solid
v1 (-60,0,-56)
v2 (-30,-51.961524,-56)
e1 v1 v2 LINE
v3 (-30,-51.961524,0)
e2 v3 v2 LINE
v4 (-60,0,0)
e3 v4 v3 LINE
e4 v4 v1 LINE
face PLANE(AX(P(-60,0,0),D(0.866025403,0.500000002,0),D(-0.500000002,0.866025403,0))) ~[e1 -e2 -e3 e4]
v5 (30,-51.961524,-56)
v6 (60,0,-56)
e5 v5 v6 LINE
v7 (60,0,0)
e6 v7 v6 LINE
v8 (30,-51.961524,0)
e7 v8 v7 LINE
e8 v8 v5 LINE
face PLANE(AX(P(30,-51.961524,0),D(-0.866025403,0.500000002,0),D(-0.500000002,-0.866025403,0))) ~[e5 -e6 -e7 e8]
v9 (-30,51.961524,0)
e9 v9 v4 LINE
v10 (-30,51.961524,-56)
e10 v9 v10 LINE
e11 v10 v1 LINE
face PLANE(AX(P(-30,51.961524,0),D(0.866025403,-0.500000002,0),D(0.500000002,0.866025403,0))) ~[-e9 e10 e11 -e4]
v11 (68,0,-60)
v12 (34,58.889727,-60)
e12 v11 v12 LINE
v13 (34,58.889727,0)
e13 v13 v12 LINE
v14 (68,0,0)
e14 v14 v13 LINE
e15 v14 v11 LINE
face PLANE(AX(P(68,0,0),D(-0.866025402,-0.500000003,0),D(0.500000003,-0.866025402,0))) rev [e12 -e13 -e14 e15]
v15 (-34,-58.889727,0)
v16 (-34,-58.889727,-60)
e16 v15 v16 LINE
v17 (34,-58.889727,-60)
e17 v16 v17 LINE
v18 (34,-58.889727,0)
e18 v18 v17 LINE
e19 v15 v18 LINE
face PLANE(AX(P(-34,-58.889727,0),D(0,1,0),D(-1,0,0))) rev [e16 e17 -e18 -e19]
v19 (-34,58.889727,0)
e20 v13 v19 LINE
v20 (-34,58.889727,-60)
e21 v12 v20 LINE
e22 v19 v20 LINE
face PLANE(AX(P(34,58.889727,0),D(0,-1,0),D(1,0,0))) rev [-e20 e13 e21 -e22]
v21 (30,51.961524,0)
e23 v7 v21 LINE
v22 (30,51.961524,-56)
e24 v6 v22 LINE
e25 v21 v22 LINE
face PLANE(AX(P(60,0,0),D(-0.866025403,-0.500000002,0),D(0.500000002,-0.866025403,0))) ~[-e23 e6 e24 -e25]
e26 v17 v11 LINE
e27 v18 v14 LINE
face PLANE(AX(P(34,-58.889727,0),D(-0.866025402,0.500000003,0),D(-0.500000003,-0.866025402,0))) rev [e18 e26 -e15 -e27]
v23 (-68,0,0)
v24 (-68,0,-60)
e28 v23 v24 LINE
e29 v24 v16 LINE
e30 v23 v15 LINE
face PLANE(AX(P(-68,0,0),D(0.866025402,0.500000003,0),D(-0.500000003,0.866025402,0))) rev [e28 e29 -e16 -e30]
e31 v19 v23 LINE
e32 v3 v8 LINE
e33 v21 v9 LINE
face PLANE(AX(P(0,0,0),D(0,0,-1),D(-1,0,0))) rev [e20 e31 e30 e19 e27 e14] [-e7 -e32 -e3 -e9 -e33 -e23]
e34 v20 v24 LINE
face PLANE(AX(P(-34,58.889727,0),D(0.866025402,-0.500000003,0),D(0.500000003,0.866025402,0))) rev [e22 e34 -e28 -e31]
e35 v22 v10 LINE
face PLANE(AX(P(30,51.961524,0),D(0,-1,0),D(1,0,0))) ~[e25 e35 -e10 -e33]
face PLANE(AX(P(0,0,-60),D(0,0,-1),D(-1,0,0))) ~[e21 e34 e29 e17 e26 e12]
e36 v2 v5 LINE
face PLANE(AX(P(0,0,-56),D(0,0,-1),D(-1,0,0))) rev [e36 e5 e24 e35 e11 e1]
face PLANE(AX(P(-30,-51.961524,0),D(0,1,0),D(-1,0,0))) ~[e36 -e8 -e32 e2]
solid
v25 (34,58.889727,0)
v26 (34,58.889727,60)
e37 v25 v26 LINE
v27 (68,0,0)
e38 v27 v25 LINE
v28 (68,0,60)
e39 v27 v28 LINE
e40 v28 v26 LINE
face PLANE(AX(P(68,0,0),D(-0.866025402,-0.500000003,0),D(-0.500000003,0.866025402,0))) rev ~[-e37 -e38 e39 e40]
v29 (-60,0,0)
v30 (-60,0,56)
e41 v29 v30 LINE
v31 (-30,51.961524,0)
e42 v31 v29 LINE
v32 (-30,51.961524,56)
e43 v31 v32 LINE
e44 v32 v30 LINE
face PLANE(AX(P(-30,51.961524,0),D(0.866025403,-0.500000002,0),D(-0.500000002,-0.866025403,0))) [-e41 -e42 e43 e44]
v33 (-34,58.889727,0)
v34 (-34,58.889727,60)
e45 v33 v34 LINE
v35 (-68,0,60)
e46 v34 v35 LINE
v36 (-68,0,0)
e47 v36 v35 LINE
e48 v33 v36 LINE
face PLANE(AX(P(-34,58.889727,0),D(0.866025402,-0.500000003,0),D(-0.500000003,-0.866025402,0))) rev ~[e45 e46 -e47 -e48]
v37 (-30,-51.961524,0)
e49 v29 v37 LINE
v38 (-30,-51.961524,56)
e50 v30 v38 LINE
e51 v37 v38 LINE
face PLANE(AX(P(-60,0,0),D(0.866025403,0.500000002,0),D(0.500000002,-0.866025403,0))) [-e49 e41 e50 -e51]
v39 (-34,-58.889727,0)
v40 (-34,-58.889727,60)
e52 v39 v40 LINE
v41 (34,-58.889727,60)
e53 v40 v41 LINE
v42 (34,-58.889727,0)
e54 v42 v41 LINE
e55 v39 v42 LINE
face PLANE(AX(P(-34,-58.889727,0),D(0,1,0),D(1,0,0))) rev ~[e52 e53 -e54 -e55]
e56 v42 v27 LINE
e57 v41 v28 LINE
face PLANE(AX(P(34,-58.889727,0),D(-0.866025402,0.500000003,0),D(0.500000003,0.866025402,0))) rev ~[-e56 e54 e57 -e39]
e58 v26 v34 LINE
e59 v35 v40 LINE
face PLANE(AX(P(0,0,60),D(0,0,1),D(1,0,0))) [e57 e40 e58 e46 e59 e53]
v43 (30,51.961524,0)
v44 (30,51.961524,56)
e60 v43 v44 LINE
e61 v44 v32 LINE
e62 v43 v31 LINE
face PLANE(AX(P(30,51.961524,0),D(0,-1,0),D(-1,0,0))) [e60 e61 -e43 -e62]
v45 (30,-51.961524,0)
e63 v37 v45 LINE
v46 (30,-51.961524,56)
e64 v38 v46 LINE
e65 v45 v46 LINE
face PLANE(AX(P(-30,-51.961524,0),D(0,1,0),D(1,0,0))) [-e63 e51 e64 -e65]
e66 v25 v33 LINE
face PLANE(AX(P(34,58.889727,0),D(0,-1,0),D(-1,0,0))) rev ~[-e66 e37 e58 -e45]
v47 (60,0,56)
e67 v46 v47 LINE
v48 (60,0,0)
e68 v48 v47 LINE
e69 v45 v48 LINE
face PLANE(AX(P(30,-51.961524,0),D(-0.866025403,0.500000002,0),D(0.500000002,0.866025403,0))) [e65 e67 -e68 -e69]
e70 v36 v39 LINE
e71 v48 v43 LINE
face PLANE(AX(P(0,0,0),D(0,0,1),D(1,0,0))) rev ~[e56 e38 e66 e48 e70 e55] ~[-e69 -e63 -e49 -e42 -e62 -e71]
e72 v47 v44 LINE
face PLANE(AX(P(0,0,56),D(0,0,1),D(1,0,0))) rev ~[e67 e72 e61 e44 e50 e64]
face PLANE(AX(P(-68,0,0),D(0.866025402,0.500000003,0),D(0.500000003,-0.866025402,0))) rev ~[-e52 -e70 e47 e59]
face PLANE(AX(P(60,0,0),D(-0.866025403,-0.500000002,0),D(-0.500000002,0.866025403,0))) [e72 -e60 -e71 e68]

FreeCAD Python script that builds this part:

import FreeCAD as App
import Part
import Sketcher
Q = App.Units.Quantity


def add_polygon(sketch, points):
    """Adds a closed chain of lines whose ends are joined by coincident constraints."""
    first, n = sketch.GeometryCount, len(points)
    for a, b in zip(points, points[1:] + points[:1]):
        sketch.addGeometry(Part.LineSegment(App.Vector(*a, 0), App.Vector(*b, 0)), False)
    for i in range(n):
        sketch.addConstraint(Sketcher.Constraint("Coincident", first + i, 2, first + (i + 1) % n, 1))

doc = App.newDocument("Part")
body = doc.addObject("PartDesign::Body", "Body")

sketch1 = body.newObject("Sketcher::SketchObject", "Sketch")
sketch1.AttachmentSupport = (doc.getObject("XY_Plane"), [""])
sketch1.MapMode = "FlatFace"
add_polygon(sketch1, [(-34, 59), (-68, 0), (-34, -59), (34, -59), (68, 0), (34, 59)])
sketch1.addConstraint([
    Sketcher.Constraint("Horizontal", 2),
    Sketcher.Constraint("Horizontal", 5),
    Sketcher.Constraint("Symmetric", 0, 2, 3, 2, -1, 1),
    Sketcher.Constraint("Symmetric", 1, 2, 4, 2, -1, 1),
    Sketcher.Constraint("PointOnObject", 0, 2, -1),
    Sketcher.Constraint("Parallel", 0, 3),
    Sketcher.Constraint("Vertical", 2, 2, 4, 2),
    Sketcher.Constraint("DistanceX", 2, 1, 2, 2, 68.0),
    Sketcher.Constraint("Angle", 0, Q("-120 deg")),
    Sketcher.Constraint("Distance", 0, 68.0),
])
pad1 = body.newObject("PartDesign::Pad", "Pad")
pad1.Profile = sketch1
pad1.Length = 60

sketch2 = body.newObject("Sketcher::SketchObject", "Sketch001")
sketch2.AttachmentSupport = (doc.getObject("XY_Plane"), [""])
sketch2.MapMode = "FlatFace"
add_polygon(sketch2, [(-30, 52), (-60, 0), (-30, -52), (30, -52), (60, 0), (30, 52)])
sketch2.addConstraint([
    Sketcher.Constraint("Horizontal", 2),
    Sketcher.Constraint("Horizontal", 5),
    Sketcher.Constraint("Symmetric", 0, 2, 3, 2, -1, 1),
    Sketcher.Constraint("Symmetric", 1, 2, 4, 2, -1, 1),
    Sketcher.Constraint("PointOnObject", 0, 2, -1),
    Sketcher.Constraint("Parallel", 0, 3),
    Sketcher.Constraint("Vertical", 2, 2, 4, 2),
    Sketcher.Constraint("DistanceX", 2, 1, 2, 2, 60.0),
    Sketcher.Constraint("Angle", 0, Q("-120 deg")),
    Sketcher.Constraint("Distance", 0, 60.0),
])
pocket1 = body.newObject("PartDesign::Pocket", "Pocket")
pocket1.Profile = sketch2
pocket1.Length = 56
pocket1.Reversed = True
body2 = doc.addObject("PartDesign::Body", "Body001")
doc.recompute()

mirroring = doc.addObject("Part::Mirroring", "Mirroring")
mirroring.Source = body
mirroring.Base = App.Vector(0, 0, 0)
mirroring.Normal = App.Vector(0, 0, 1)
body2.BaseFeature = mirroring
doc.recompute()
mirroring.Visibility = False

doc.recompute()
